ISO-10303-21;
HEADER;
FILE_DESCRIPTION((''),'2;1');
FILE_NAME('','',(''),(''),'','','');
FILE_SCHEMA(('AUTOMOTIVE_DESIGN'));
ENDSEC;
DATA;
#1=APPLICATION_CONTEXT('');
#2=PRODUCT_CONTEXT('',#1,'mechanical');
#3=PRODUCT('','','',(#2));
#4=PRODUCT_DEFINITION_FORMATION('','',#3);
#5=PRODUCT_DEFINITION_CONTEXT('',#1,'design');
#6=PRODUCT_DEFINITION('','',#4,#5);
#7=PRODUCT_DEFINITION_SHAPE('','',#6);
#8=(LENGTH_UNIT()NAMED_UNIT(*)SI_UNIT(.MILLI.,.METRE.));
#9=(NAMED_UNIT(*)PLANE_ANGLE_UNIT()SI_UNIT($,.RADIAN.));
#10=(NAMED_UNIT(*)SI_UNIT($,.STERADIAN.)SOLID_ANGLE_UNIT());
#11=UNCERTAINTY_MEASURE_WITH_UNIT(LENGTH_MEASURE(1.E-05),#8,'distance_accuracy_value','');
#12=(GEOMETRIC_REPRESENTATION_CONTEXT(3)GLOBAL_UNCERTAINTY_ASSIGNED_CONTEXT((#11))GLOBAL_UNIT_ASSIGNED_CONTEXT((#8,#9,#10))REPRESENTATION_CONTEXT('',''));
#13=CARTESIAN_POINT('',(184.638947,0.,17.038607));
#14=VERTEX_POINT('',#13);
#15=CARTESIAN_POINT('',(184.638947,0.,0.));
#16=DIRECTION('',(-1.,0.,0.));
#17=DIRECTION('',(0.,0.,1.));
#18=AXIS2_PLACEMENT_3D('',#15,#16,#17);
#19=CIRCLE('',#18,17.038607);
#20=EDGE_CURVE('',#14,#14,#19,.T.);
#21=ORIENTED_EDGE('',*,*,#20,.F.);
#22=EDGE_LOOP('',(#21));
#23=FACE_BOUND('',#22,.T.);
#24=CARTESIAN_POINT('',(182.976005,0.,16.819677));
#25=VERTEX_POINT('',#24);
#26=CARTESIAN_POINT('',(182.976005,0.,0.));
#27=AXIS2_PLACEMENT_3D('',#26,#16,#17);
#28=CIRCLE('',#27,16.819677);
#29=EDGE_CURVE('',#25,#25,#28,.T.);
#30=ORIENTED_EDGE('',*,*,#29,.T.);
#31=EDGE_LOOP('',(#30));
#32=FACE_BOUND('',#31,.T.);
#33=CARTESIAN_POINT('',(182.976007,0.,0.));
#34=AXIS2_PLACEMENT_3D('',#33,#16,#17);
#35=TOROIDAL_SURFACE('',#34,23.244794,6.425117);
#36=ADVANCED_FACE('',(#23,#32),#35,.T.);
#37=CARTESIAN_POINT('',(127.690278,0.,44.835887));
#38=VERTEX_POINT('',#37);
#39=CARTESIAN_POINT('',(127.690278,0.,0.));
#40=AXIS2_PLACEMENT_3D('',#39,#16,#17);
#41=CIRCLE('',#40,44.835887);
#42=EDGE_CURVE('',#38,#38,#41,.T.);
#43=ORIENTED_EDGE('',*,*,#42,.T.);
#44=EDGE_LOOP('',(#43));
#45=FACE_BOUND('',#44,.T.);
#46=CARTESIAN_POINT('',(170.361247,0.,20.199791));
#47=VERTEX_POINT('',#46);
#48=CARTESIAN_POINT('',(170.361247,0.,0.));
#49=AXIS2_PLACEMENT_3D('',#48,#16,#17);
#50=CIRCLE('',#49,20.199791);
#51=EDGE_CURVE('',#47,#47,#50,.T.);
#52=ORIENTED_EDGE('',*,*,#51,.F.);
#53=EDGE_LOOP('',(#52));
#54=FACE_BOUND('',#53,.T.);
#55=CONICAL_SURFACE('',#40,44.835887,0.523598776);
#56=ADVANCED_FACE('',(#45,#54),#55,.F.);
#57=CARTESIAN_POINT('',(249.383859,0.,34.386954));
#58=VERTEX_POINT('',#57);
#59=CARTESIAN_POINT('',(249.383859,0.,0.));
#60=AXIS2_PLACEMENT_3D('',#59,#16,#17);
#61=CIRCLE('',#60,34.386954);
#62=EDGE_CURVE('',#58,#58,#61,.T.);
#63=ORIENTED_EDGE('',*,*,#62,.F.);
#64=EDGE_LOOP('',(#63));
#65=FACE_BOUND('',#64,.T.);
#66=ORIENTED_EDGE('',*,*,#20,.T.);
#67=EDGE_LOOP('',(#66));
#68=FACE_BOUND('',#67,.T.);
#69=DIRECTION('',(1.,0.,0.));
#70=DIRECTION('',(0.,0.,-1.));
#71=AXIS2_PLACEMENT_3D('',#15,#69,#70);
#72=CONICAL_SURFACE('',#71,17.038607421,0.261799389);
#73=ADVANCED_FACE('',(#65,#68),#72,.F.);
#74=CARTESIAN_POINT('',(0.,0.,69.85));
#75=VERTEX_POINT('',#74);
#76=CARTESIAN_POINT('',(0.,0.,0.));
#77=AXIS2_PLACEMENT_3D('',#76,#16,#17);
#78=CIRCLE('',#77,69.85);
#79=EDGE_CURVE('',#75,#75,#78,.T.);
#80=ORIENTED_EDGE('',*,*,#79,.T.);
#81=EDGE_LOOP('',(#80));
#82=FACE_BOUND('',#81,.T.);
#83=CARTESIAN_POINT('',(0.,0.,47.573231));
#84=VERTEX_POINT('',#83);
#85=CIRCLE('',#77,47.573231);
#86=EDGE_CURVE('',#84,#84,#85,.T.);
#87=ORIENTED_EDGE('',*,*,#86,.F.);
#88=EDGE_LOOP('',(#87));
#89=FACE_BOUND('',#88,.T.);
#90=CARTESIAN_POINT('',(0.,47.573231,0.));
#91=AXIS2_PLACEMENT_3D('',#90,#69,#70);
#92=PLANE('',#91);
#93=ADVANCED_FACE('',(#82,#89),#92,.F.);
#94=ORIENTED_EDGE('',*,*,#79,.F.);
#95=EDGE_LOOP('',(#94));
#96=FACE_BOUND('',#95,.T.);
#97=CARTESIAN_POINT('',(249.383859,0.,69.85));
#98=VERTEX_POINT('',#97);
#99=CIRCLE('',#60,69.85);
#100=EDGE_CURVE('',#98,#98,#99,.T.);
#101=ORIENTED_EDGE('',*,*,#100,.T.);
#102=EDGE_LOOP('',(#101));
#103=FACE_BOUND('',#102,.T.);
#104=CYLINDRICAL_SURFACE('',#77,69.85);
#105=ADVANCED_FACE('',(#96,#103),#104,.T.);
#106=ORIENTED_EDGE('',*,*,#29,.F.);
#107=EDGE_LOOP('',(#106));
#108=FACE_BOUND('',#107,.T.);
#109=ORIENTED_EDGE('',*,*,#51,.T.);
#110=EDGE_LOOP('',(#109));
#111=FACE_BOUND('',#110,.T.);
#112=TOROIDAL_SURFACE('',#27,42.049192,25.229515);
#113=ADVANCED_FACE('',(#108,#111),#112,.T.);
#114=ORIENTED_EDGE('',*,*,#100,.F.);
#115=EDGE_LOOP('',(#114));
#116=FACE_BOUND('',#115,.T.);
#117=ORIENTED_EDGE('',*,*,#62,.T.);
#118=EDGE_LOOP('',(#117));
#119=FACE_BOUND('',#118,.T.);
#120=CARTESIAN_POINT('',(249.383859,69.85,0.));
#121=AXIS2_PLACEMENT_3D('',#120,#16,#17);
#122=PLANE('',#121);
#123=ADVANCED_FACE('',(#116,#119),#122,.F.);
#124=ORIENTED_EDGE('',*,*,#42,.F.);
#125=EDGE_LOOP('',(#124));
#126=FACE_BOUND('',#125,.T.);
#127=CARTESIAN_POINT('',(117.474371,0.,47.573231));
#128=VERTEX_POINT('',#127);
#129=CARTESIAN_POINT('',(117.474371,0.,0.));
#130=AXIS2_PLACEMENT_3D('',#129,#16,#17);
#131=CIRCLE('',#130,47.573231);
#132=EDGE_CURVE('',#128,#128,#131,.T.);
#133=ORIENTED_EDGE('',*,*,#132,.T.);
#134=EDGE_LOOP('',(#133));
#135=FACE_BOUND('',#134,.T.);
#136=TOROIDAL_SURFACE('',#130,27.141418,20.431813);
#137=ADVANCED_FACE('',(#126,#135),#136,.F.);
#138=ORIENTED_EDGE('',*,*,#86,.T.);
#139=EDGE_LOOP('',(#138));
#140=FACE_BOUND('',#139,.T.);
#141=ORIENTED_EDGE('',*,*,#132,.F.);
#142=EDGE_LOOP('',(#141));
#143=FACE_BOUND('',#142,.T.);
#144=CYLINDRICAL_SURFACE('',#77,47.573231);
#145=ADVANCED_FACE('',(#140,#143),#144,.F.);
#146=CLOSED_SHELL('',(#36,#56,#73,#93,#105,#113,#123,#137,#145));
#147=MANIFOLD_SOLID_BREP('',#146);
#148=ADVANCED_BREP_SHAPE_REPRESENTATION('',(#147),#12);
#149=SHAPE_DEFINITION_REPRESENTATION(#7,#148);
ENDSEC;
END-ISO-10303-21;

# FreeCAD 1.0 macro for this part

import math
import FreeCAD as App
import Part
import Sketcher
Q = App.Units.Quantity

doc = App.newDocument("Part")
body = doc.addObject("PartDesign::Body", "Body")

# Sketch on XY plane
sketch1 = doc.addObject("Sketcher::SketchObject", "Sketch")
body.addObject(sketch1)
sketch1.AttachmentSupport = (doc.XY_Plane, [""])
sketch1.MapMode = "FlatFace"
sketch1.addGeometry([
    Part.LineSegment(App.Vector(0, 47.6, 0), App.Vector(117.5, 47.6, 0)),  # 0
    Part.ArcOfCircle(Part.Circle(App.Vector(117.5, 27.1, 0), App.Vector(0, 0, 1), 20.4), math.radians(60), math.radians(90)),  # 1
    Part.LineSegment(App.Vector(127.7, 44.8, 0), App.Vector(170.4, 20.2, 0)),  # 2
    Part.ArcOfCircle(Part.Circle(App.Vector(183, 42, 0), App.Vector(0, 0, 1), 25.2), math.radians(-120), math.radians(-90)),  # 3
    Part.ArcOfCircle(Part.Circle(App.Vector(183, 23.2, 0), App.Vector(0, 0, 1), 6.4), math.radians(-90), math.radians(-75)),  # 4
    Part.LineSegment(App.Vector(184.6, 17, 0), App.Vector(249.4, 34.4, 0)),  # 5
    Part.LineSegment(App.Vector(249.4, 34.4, 0), App.Vector(249.4, 69.8, 0)),  # 6
    Part.LineSegment(App.Vector(249.4, 69.8, 0), App.Vector(0, 69.8, 0)),  # 7
    Part.LineSegment(App.Vector(0, 69.8, 0), App.Vector(0, 47.6, 0)),  # 8
], False)
sketch1.addConstraint([
    Sketcher.Constraint("Tangent", 0, 2, 1, 2),
    Sketcher.Constraint("Tangent", 1, 1, 2, 1),
    Sketcher.Constraint("Tangent", 2, 2, 3, 1),
    Sketcher.Constraint("Tangent", 3, 2, 4, 1),
    Sketcher.Constraint("Tangent", 4, 2, 5, 1),
    Sketcher.Constraint("Coincident", 5, 2, 6, 1),
    Sketcher.Constraint("Coincident", 6, 2, 7, 1),
    Sketcher.Constraint("Coincident", 7, 2, 8, 1),
    Sketcher.Constraint("Coincident", 8, 2, 0, 1),
    Sketcher.Constraint("Horizontal", 0),
    Sketcher.Constraint("Vertical", 6),
    Sketcher.Constraint("Horizontal", 7),
    Sketcher.Constraint("Vertical", 8),
    Sketcher.Constraint("PointOnObject", 7, 2, -2),
    Sketcher.Constraint("Vertical", 4, 3, 3, 2),
    Sketcher.Constraint("Angle", 2, Q("-30 deg")),
    Sketcher.Constraint("Angle", 5, Q("15 deg")),
    Sketcher.Constraint("DistanceY", -1, 1, 6, 2, Q("69.85 mm")),
    Sketcher.Constraint("Radius", 1, Q("20.431813 mm")),
    Sketcher.Constraint("Radius", 3, Q("25.229515 mm")),
    Sketcher.Constraint("Radius", 4, Q("6.425117 mm")),
    Sketcher.Constraint("DistanceX", 0, 1, 0, 2, Q("117.474371 mm")),
    Sketcher.Constraint("DistanceX", 7, 2, 7, 1, Q("249.383859 mm")),
    Sketcher.Constraint("DistanceY", 8, 2, 8, 1, Q("22.276769 mm")),
    Sketcher.Constraint("Distance", 2, Q("49.272191 mm")),
])
revolution = doc.addObject("PartDesign::Revolution", "Revolution")
body.addObject(revolution)
revolution.Profile = sketch1
revolution.ReferenceAxis = (sketch1, ["H_Axis"])
revolution.Angle = 360

doc.recompute()
